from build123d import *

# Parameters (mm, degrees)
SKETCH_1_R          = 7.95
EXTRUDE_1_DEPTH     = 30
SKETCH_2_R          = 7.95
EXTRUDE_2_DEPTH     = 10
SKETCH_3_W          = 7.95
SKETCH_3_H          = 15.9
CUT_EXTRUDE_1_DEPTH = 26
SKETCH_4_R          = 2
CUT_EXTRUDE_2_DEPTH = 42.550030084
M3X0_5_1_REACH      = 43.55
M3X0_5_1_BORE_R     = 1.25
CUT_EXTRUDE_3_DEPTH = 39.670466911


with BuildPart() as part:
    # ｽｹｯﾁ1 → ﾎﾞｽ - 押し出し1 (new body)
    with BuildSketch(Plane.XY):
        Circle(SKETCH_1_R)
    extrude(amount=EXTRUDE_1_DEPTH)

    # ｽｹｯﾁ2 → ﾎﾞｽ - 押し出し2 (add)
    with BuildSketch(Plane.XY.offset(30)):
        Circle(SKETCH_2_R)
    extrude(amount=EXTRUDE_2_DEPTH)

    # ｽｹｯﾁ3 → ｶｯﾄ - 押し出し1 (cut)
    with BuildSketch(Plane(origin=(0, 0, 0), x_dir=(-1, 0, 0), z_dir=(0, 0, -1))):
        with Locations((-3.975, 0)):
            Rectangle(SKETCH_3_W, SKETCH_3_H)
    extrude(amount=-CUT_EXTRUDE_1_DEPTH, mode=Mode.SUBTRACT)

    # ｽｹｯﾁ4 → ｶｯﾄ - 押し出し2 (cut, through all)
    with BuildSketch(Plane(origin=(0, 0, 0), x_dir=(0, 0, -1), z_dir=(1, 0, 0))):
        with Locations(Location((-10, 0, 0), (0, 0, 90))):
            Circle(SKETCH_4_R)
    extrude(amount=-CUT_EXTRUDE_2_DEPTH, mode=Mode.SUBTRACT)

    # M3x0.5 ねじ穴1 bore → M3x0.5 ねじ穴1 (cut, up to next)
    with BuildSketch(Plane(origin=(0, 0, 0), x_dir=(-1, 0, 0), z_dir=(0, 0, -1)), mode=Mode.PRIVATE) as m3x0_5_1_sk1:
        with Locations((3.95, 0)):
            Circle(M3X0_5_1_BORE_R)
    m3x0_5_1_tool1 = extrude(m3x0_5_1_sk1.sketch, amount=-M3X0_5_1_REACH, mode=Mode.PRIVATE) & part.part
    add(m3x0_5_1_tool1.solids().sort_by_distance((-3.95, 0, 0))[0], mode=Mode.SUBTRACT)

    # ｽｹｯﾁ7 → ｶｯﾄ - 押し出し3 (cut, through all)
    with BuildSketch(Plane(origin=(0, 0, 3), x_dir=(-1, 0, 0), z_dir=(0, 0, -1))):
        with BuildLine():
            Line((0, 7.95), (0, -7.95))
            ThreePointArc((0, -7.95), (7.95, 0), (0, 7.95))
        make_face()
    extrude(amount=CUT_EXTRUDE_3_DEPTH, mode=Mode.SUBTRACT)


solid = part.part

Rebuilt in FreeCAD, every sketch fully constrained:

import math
import FreeCAD as App
import Part
import Sketcher
from FreeCAD import Vector
Q = App.Units.Quantity


def add_polygon(sketch, points):
    """Adds a closed chain of lines whose ends are joined by coincident constraints."""
    first, n = sketch.GeometryCount, len(points)
    for a, b in zip(points, points[1:] + points[:1]):
        sketch.addGeometry(Part.LineSegment(App.Vector(*a, 0), App.Vector(*b, 0)), False)
    for i in range(n):
        sketch.addConstraint(Sketcher.Constraint("Coincident", first + i, 2, first + (i + 1) % n, 1))

doc = App.newDocument("Part")
params = doc.addObject("Spreadsheet::Sheet", "Params")
for row, (alias, value) in enumerate([
    ("sketch1_diameter", "15.9 mm"),
    ("pad1_length", "30 mm"),
    ("sketch2_diameter", "15.9 mm"),
    ("pad2_length", "10 mm"),
    ("sketch3_height", "15.9 mm"),
    ("sketch3_width", "7.95 mm"),
    ("pocket1_length", "26 mm"),
    ("sketch4_diameter", "4 mm"),
    ("sketch5_diameter", "2.5 mm"),
    ("sketch6_radius", "7.95 mm"),
], start=1):
    params.set(f"A{row}", alias)
    params.set(f"B{row}", "=" + value)
    params.setAlias(f"B{row}", alias)

body = doc.addObject("PartDesign::Body", "Body")

sketch1 = doc.addObject("Sketcher::SketchObject", "Sketch")
body.addObject(sketch1)
sketch1.AttachmentSupport = (doc.XY_Plane, [""])
sketch1.MapMode = "FlatFace"
sketch1.addGeometry(Part.Circle(Vector(0, 0, 0), Vector(0, 0, 1), 8), False)
sketch1.addConstraint([
    Sketcher.Constraint("Coincident", 0, 3, -1, 1),
    Sketcher.Constraint("Diameter", 0, Q("15.9 mm")),
])
sketch1.setExpression("Constraints[1]", "Params.sketch1_diameter")
pad1 = doc.addObject("PartDesign::Pad", "Pad")
body.addObject(pad1)
pad1.Profile = sketch1
pad1.setExpression("Length", "Params.pad1_length")

sketch2 = doc.addObject("Sketcher::SketchObject", "Sketch001")
body.addObject(sketch2)
sketch2.AttachmentSupport = (doc.XY_Plane, [""])
sketch2.MapMode = "FlatFace"
sketch2.AttachmentOffset = App.Placement(Vector(0, 0, 30), App.Rotation())
sketch2.addGeometry(Part.Circle(Vector(0, 0, 0), Vector(0, 0, 1), 8), False)
sketch2.addConstraint([
    Sketcher.Constraint("Coincident", 0, 3, -1, 1),
    Sketcher.Constraint("Diameter", 0, Q("15.9 mm")),
])
sketch2.setExpression("Constraints[1]", "Params.sketch2_diameter")
pad2 = doc.addObject("PartDesign::Pad", "Pad001")
body.addObject(pad2)
pad2.Profile = sketch2
pad2.setExpression("Length", "Params.pad2_length")

sketch3 = doc.addObject("Sketcher::SketchObject", "Sketch002")
body.addObject(sketch3)
sketch3.AttachmentSupport = (doc.XY_Plane, [""])
sketch3.MapMode = "FlatFace"
add_polygon(sketch3, [(8, 8), (8, -8), (0, -8), (0, 8)])
sketch3.addConstraint([
    Sketcher.Constraint("Vertical", 0),
    Sketcher.Constraint("Horizontal", 1),
    Sketcher.Constraint("Vertical", 2),
    Sketcher.Constraint("Horizontal", 3),
    Sketcher.Constraint("Symmetric", 1, 2, 2, 2, -1, 1),
    Sketcher.Constraint("DistanceY", 0, 2, 0, 1, Q("15.9 mm")),
    Sketcher.Constraint("DistanceX", 1, 2, 1, 1, Q("7.95 mm")),
])
sketch3.setExpression("Constraints[9]", "Params.sketch3_height")
sketch3.setExpression("Constraints[10]", "Params.sketch3_width")
pocket1 = doc.addObject("PartDesign::Pocket", "Pocket")
body.addObject(pocket1)
pocket1.Profile = sketch3
pocket1.setExpression("Length", "Params.pocket1_length")
pocket1.Reversed = True

sketch4 = doc.addObject("Sketcher::SketchObject", "Sketch003")
body.addObject(sketch4)
sketch4.AttachmentSupport = (doc.YZ_Plane, [""])
sketch4.MapMode = "FlatFace"
sketch4.addGeometry(Part.Circle(Vector(0, 10, 0), Vector(0, 0, 1), 2), False)
sketch4.addConstraint([
    Sketcher.Constraint("PointOnObject", 0, 3, -2),
    Sketcher.Constraint("Diameter", 0, Q("4 mm")),
    Sketcher.Constraint("DistanceY", -1, 1, 0, 3, Q("10 mm")),
])
sketch4.setExpression("Constraints[1]", "Params.sketch4_diameter")
pocket2 = doc.addObject("PartDesign::Pocket", "Pocket001")
body.addObject(pocket2)
pocket2.Profile = sketch4
pocket2.Type = "ThroughAll"

sketch5 = doc.addObject("Sketcher::SketchObject", "Sketch004")
body.addObject(sketch5)
sketch5.AttachmentSupport = (doc.XY_Plane, [""])
sketch5.MapMode = "FlatFace"
sketch5.addGeometry(Part.Circle(Vector(-4, 0, 0), Vector(0, 0, 1), 1.2), False)
sketch5.addConstraint([
    Sketcher.Constraint("PointOnObject", 0, 3, -1),
    Sketcher.Constraint("Diameter", 0, Q("2.5 mm")),
    Sketcher.Constraint("DistanceX", 0, 3, -1, 1, Q("3.95 mm")),
])
sketch5.setExpression("Constraints[1]", "Params.sketch5_diameter")
pocket3 = doc.addObject("PartDesign::Pocket", "Pocket002")
body.addObject(pocket3)
pocket3.Profile = sketch5
pocket3.Type = "UpToFirst"
pocket3.Reversed = True

sketch6 = doc.addObject("Sketcher::SketchObject", "Sketch005")
body.addObject(sketch6)
sketch6.AttachmentSupport = (doc.XY_Plane, [""])
sketch6.MapMode = "FlatFace"
sketch6.AttachmentOffset = App.Placement(Vector(0, 0, 3), App.Rotation())
sketch6.addGeometry([
    Part.LineSegment(Vector(0, 8, 0), Vector(0, -8, 0)),
    Part.ArcOfCircle(Part.Circle(Vector(0, 0, 0), Vector(0, 0, 1), 8), math.radians(90), math.radians(270)),
], False)
sketch6.addConstraint([
    Sketcher.Constraint("Coincident", 0, 1, 1, 1),
    Sketcher.Constraint("Coincident", 1, 2, 0, 2),
    Sketcher.Constraint("Vertical", 0),
    Sketcher.Constraint("Coincident", 1, 3, -1, 1),
    Sketcher.Constraint("PointOnObject", 0, 1, -2),
    Sketcher.Constraint("Radius", 1, Q("7.95 mm")),
])
sketch6.setExpression("Constraints[5]", "Params.sketch6_radius")
pocket4 = doc.addObject("PartDesign::Pocket", "Pocket003")
body.addObject(pocket4)
pocket4.Profile = sketch6
pocket4.Type = "ThroughAll"

doc.recompute()
